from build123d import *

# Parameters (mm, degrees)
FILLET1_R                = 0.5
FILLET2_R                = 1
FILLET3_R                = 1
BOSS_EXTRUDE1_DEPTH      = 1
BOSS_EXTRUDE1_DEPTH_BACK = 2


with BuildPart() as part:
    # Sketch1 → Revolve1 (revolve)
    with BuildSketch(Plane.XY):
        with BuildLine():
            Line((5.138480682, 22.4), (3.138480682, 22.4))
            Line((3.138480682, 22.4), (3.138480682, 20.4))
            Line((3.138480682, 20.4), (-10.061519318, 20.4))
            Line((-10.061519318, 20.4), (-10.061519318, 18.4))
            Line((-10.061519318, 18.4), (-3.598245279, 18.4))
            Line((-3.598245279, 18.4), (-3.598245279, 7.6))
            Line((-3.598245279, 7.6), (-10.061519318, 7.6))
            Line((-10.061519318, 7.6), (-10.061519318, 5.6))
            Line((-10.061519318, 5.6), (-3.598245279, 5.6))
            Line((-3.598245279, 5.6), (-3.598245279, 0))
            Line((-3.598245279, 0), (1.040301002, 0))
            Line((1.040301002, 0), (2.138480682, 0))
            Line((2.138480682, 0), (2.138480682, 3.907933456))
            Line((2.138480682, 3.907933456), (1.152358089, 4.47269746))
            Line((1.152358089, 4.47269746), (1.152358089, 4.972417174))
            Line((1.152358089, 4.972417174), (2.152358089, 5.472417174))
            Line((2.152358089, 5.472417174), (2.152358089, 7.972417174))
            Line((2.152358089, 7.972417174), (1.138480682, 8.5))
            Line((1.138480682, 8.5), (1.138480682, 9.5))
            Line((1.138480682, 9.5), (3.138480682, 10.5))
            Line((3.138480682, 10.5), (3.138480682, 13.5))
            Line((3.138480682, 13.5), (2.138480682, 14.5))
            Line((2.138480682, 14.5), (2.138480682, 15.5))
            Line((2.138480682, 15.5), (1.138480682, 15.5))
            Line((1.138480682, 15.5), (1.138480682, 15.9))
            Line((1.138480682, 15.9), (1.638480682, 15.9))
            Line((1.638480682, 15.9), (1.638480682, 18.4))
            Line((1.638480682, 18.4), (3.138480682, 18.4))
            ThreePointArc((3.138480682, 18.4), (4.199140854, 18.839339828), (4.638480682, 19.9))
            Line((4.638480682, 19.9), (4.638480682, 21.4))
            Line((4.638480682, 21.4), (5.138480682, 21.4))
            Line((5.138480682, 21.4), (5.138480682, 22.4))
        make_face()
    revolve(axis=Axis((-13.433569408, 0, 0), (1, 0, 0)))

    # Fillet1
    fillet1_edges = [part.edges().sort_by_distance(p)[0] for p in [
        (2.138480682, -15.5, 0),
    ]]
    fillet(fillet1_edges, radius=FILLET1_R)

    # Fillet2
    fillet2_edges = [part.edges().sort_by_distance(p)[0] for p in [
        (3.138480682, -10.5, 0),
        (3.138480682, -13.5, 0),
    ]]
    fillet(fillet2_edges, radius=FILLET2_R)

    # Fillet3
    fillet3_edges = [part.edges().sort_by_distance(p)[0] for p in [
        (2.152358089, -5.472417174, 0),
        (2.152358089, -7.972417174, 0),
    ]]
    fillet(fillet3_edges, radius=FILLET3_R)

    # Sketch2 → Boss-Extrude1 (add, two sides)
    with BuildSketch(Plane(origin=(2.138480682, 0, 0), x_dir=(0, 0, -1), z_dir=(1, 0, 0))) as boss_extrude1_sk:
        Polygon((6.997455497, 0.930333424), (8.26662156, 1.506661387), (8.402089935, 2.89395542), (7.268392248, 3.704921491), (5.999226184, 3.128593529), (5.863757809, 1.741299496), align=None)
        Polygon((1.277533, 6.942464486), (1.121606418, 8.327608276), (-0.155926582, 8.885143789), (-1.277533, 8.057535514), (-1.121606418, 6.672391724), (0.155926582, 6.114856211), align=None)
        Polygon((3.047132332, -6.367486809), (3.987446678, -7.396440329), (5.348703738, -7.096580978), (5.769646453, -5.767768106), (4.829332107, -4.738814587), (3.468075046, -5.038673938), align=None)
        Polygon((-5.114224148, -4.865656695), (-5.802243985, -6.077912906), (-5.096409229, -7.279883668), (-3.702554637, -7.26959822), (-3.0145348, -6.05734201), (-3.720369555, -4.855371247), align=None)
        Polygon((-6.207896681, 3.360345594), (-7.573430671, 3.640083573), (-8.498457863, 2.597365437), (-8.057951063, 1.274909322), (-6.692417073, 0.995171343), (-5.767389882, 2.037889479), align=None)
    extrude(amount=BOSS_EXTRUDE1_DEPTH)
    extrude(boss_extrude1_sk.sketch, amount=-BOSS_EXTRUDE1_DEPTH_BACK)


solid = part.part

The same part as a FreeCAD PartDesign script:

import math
import FreeCAD as App
import Part
import Sketcher

V = App.Vector
Q = App.Units.Quantity


def edges_at(feature, points):
    """Names of the edges that pass closest to the given points."""
    edges = feature.Shape.Edges
    near = lambda p: min(range(len(edges)), key=lambda i: edges[i].distToShape(Part.Vertex(*p))[0])
    return sorted({f"Edge{near(p) + 1}" for p in points})


def add_polygon(sketch, points):
    """Adds a closed chain of lines whose ends are joined by coincident constraints."""
    first, n = sketch.GeometryCount, len(points)
    for a, b in zip(points, points[1:] + points[:1]):
        sketch.addGeometry(Part.LineSegment(App.Vector(*a, 0), App.Vector(*b, 0)), False)
    for i in range(n):
        sketch.addConstraint(Sketcher.Constraint("Coincident", first + i, 2, first + (i + 1) % n, 1))

doc = App.newDocument("Part")
body = doc.addObject("PartDesign::Body", "Body")

# Sketch on XY plane
sketch1 = body.newObject("Sketcher::SketchObject", "Sketch")
sketch1.AttachmentSupport = (doc.getObject("XY_Plane"), [""])
sketch1.MapMode = "FlatFace"
sketch1.addGeometry([
    Part.LineSegment(V(5.14, 22.4, 0), V(3.14, 22.4, 0)),  # 0
    Part.LineSegment(V(3.14, 22.4, 0), V(3.14, 20.4, 0)),  # 1
    Part.LineSegment(V(3.14, 20.4, 0), V(-10.06, 20.4, 0)),  # 2
    Part.LineSegment(V(-10.06, 20.4, 0), V(-10.06, 18.4, 0)),  # 3
    Part.LineSegment(V(-10.06, 18.4, 0), V(-3.6, 18.4, 0)),  # 4
    Part.LineSegment(V(-3.6, 18.4, 0), V(-3.6, 7.6, 0)),  # 5
    Part.LineSegment(V(-3.6, 7.6, 0), V(-10.06, 7.6, 0)),  # 6
    Part.LineSegment(V(-10.06, 7.6, 0), V(-10.06, 5.6, 0)),  # 7
    Part.LineSegment(V(-10.06, 5.6, 0), V(-3.6, 5.6, 0)),  # 8
    Part.LineSegment(V(-3.6, 5.6, 0), V(-3.6, 0, 0)),  # 9
    Part.LineSegment(V(-3.6, 0, 0), V(2.14, 0, 0)),  # 10
    Part.LineSegment(V(2.14, 0, 0), V(2.14, 3.91, 0)),  # 11
    Part.LineSegment(V(2.14, 3.91, 0), V(1.15, 4.47, 0)),  # 12
    Part.LineSegment(V(1.15, 4.47, 0), V(1.15, 4.97, 0)),  # 13
    Part.LineSegment(V(1.15, 4.97, 0), V(2.15, 5.47, 0)),  # 14
    Part.LineSegment(V(2.15, 5.47, 0), V(2.15, 7.97, 0)),  # 15
    Part.LineSegment(V(2.15, 7.97, 0), V(1.14, 8.5, 0)),  # 16
    Part.LineSegment(V(1.14, 8.5, 0), V(1.14, 9.5, 0)),  # 17
    Part.LineSegment(V(1.14, 9.5, 0), V(3.14, 10.5, 0)),  # 18
    Part.LineSegment(V(3.14, 10.5, 0), V(3.14, 13.5, 0)),  # 19
    Part.LineSegment(V(3.14, 13.5, 0), V(2.14, 14.5, 0)),  # 20
    Part.LineSegment(V(2.14, 14.5, 0), V(2.14, 15.5, 0)),  # 21
    Part.LineSegment(V(2.14, 15.5, 0), V(1.14, 15.5, 0)),  # 22
    Part.LineSegment(V(1.14, 15.5, 0), V(1.14, 15.9, 0)),  # 23
    Part.LineSegment(V(1.14, 15.9, 0), V(1.64, 15.9, 0)),  # 24
    Part.LineSegment(V(1.64, 15.9, 0), V(1.64, 18.4, 0)),  # 25
    Part.LineSegment(V(1.64, 18.4, 0), V(3.14, 18.4, 0)),  # 26
    Part.ArcOfCircle(Part.Circle(V(3.14, 19.9, 0), V(0, 0, 1), 1.5), math.radians(-90), math.radians(0)),  # 27
    Part.LineSegment(V(4.64, 19.9, 0), V(4.64, 21.4, 0)),  # 28
    Part.LineSegment(V(4.64, 21.4, 0), V(5.14, 21.4, 0)),  # 29
    Part.LineSegment(V(5.14, 21.4, 0), V(5.14, 22.4, 0)),  # 30
], False)
sketch1.addConstraint([
    Sketcher.Constraint("Coincident", 0, 2, 1, 1),
    Sketcher.Constraint("Coincident", 1, 2, 2, 1),
    Sketcher.Constraint("Coincident", 2, 2, 3, 1),
    Sketcher.Constraint("Coincident", 3, 2, 4, 1),
    Sketcher.Constraint("Coincident", 4, 2, 5, 1),
    Sketcher.Constraint("Coincident", 5, 2, 6, 1),
    Sketcher.Constraint("Coincident", 6, 2, 7, 1),
    Sketcher.Constraint("Coincident", 7, 2, 8, 1),
    Sketcher.Constraint("Coincident", 8, 2, 9, 1),
    Sketcher.Constraint("Coincident", 9, 2, 10, 1),
    Sketcher.Constraint("Coincident", 10, 2, 11, 1),
    Sketcher.Constraint("Coincident", 11, 2, 12, 1),
    Sketcher.Constraint("Coincident", 12, 2, 13, 1),
    Sketcher.Constraint("Coincident", 13, 2, 14, 1),
    Sketcher.Constraint("Coincident", 14, 2, 15, 1),
    Sketcher.Constraint("Coincident", 15, 2, 16, 1),
    Sketcher.Constraint("Coincident", 16, 2, 17, 1),
    Sketcher.Constraint("Coincident", 17, 2, 18, 1),
    Sketcher.Constraint("Coincident", 18, 2, 19, 1),
    Sketcher.Constraint("Coincident", 19, 2, 20, 1),
    Sketcher.Constraint("Coincident", 20, 2, 21, 1),
    Sketcher.Constraint("Coincident", 21, 2, 22, 1),
    Sketcher.Constraint("Coincident", 22, 2, 23, 1),
    Sketcher.Constraint("Coincident", 23, 2, 24, 1),
    Sketcher.Constraint("Coincident", 24, 2, 25, 1),
    Sketcher.Constraint("Coincident", 25, 2, 26, 1),
    Sketcher.Constraint("Tangent", 26, 2, 27, 1),
    Sketcher.Constraint("Tangent", 27, 2, 28, 1),
    Sketcher.Constraint("Coincident", 28, 2, 29, 1),
    Sketcher.Constraint("Coincident", 29, 2, 30, 1),
    Sketcher.Constraint("Coincident", 30, 2, 0, 1),
    Sketcher.Constraint("Horizontal", 0),
    Sketcher.Constraint("Vertical", 1),
    Sketcher.Constraint("Horizontal", 2),
    Sketcher.Constraint("Vertical", 3),
    Sketcher.Constraint("Horizontal", 4),
    Sketcher.Constraint("Vertical", 5),
    Sketcher.Constraint("Horizontal", 6),
    Sketcher.Constraint("Vertical", 7),
    Sketcher.Constraint("Horizontal", 8),
    Sketcher.Constraint("Vertical", 9),
    Sketcher.Constraint("Horizontal", 10),
    Sketcher.Constraint("Vertical", 11),
    Sketcher.Constraint("Vertical", 13),
    Sketcher.Constraint("Vertical", 15),
    Sketcher.Constraint("Vertical", 17),
    Sketcher.Constraint("Vertical", 19),
    Sketcher.Constraint("Vertical", 21),
    Sketcher.Constraint("Horizontal", 22),
    Sketcher.Constraint("Vertical", 23),
    Sketcher.Constraint("Horizontal", 24),
    Sketcher.Constraint("Vertical", 25),
    Sketcher.Constraint("Horizontal", 26),
    Sketcher.Constraint("Vertical", 28),
    Sketcher.Constraint("Horizontal", 29),
    Sketcher.Constraint("Vertical", 30),
    Sketcher.Constraint("PointOnObject", 9, 2, -1),
    Sketcher.Constraint("Parallel", 14, 18),
    Sketcher.Constraint("Horizontal", 4, 2, 25, 2),
    Sketcher.Constraint("Vertical", 27, 3, 0, 2),
    Sketcher.Constraint("Vertical", 3, 2, 6, 2),
    Sketcher.Constraint("Vertical", 5, 2, 8, 2),
    Sketcher.Constraint("Vertical", 1, 2, 18, 2),
    Sketcher.Constraint("Vertical", 11, 2, 20, 2),
    Sketcher.Constraint("Vertical", 17, 2, 22, 2),
    Sketcher.Constraint("Equal", 24, 29),
    Sketcher.Constraint("Equal", 0, 1),
    Sketcher.Constraint("Equal", 1, 3),
    Sketcher.Constraint("Equal", 3, 7),
    Sketcher.Constraint("Equal", 22, 17),
    Sketcher.Constraint("Equal", 17, 21),
    Sketcher.Constraint("Equal", 15, 25),
    Sketcher.Constraint("Equal", 26, 28),
    Sketcher.Constraint("Equal", 21, 30),
    Sketcher.Constraint("Radius", 27, 1.5),
    Sketcher.Constraint("DistanceX", 0, 2, 0, 1, 2.0),
    Sketcher.Constraint("DistanceX", 22, 2, 22, 1, 1.0),
    Sketcher.Constraint("DistanceY", 19, 1, 19, 2, 3.0),
    Sketcher.Constraint("Angle", 20, Q("135 deg")),
    Sketcher.Constraint("DistanceX", 2, 2, 2, 1, 13.2),
    Sketcher.Constraint("DistanceY", 5, 2, 5, 1, 10.8),
    Sketcher.Constraint("DistanceY", 9, 2, 9, 1, 5.6),
    Sketcher.Constraint("DistanceY", 15, 1, 15, 2, 2.5),
    Sketcher.Constraint("DistanceY", 23, 1, 23, 2, 0.4),
    Sketcher.Constraint("DistanceX", 13, 2, 14, 2, 1.0),
    Sketcher.Constraint("DistanceY", 13, 2, 15, 2, 3.0),
    Sketcher.Constraint("DistanceY", 13, 1, 13, 2, 0.49972),
    Sketcher.Constraint("Distance", 16, 1.142931),
    Sketcher.Constraint("DistanceX", 4, 1, 4, 2, 6.463274),
    Sketcher.Constraint("DistanceY", 11, 1, 11, 2, 3.907933),
    Sketcher.Constraint("DistanceX", -1, 1, 27, 3, 3.138481),
    Sketcher.Constraint("DistanceX", -1, 1, 12, 2, 1.152358),
])
revolution = body.newObject("PartDesign::Revolution", "Revolution")
revolution.Profile = sketch1
revolution.ReferenceAxis = (sketch1, ["H_Axis"])
revolution.Angle = 360
doc.recompute()

fillet = body.newObject("PartDesign::Fillet", "Fillet")
fillet.Base = (revolution, edges_at(revolution, [(2.138, -15.5, 0)]))
fillet.Radius = 0.5
doc.recompute()

fillet2 = body.newObject("PartDesign::Fillet", "Fillet001")
fillet2.Base = (fillet, edges_at(fillet, [(3.138, -10.5, 0), (3.138, -13.5, 0)]))
fillet2.Radius = 1
doc.recompute()

fillet3 = body.newObject("PartDesign::Fillet", "Fillet002")
fillet3.Base = (fillet2, edges_at(fillet2, [(2.152, -5.472, 0), (2.152, -7.972, 0)]))
fillet3.Radius = 1

# Sketch on YZ plane
sketch2 = body.newObject("Sketcher::SketchObject", "Sketch001")
sketch2.AttachmentSupport = (doc.getObject("YZ_Plane"), [""])
sketch2.MapMode = "FlatFace"
sketch2.AttachmentOffset = App.Placement(V(0, 0, 2.138481), App.Rotation())
add_polygon(sketch2, [(0.9, -7), (1.5, -8.3), (2.9, -8.4), (3.7, -7.3), (3.1, -6), (1.7, -5.9)])  # lines 0-5
add_polygon(sketch2, [(6.9, -1.3), (8.3, -1.1), (8.9, 0.2), (8.1, 1.3), (6.7, 1.1), (6.1, -0.2)])  # lines 6-11
add_polygon(sketch2, [(-6.4, -3), (-7.4, -4), (-7.1, -5.3), (-5.8, -5.8), (-4.7, -4.8), (-5, -3.5)])  # lines 12-17
add_polygon(sketch2, [(-4.9, 5.1), (-6.1, 5.8), (-7.3, 5.1), (-7.3, 3.7), (-6.1, 3), (-4.9, 3.7)])  # lines 18-23
add_polygon(sketch2, [(3.4, 6.2), (3.6, 7.6), (2.6, 8.5), (1.3, 8.1), (1, 6.7), (2, 5.8)])  # lines 24-29
sketch2.addConstraint([
    Sketcher.Constraint("Parallel", 0, 3),
    Sketcher.Constraint("Parallel", 1, 4),
    Sketcher.Constraint("Parallel", 2, 5),
    Sketcher.Constraint("Parallel", 6, 9),
    Sketcher.Constraint("Parallel", 7, 10),
    Sketcher.Constraint("Parallel", 8, 11),
    Sketcher.Constraint("Parallel", 12, 15),
    Sketcher.Constraint("Parallel", 13, 16),
    Sketcher.Constraint("Parallel", 14, 17),
    Sketcher.Constraint("Parallel", 18, 21),
    Sketcher.Constraint("Parallel", 19, 22),
    Sketcher.Constraint("Parallel", 20, 23),
    Sketcher.Constraint("Parallel", 24, 27),
    Sketcher.Constraint("Parallel", 25, 28),
    Sketcher.Constraint("Parallel", 26, 29),
    Sketcher.Constraint("Equal", 0, 1),
    Sketcher.Constraint("Equal", 1, 2),
    Sketcher.Constraint("Equal", 2, 3),
    Sketcher.Constraint("Equal", 5, 6),
    Sketcher.Constraint("Equal", 6, 7),
    Sketcher.Constraint("Equal", 7, 8),
    Sketcher.Constraint("Equal", 8, 9),
    Sketcher.Constraint("Equal", 11, 12),
    Sketcher.Constraint("Equal", 12, 13),
    Sketcher.Constraint("Equal", 13, 14),
    Sketcher.Constraint("Equal", 14, 15),
    Sketcher.Constraint("Equal", 17, 18),
    Sketcher.Constraint("Equal", 18, 19),
    Sketcher.Constraint("Equal", 19, 20),
    Sketcher.Constraint("Equal", 20, 21),
    Sketcher.Constraint("Equal", 23, 24),
    Sketcher.Constraint("Equal", 24, 25),
    Sketcher.Constraint("Equal", 25, 26),
    Sketcher.Constraint("Equal", 26, 27),
    Sketcher.Constraint("DistanceY", 12, 2, 20, 2, 7.690001),
    Sketcher.Constraint("DistanceX", -1, 1, 4, 2, 1.741299),
    Sketcher.Constraint("DistanceX", 20, 2, -1, 1, 7.269598),
    Sketcher.Constraint("DistanceX", 3, 2, 9, 2, 3.543798),
    Sketcher.Constraint("DistanceY", 3, 2, 10, 2, 5.8433),
    Sketcher.Constraint("DistanceX", 12, 2, 0, 2, 8.903102),
    Sketcher.Constraint("DistanceY", 14, 2, 12, 2, 1.7822),
    Sketcher.Constraint("DistanceX", 14, 2, 5, 2, 6.698102),
    Sketcher.Constraint("DistanceX", 18, 2, 15, 2, 1.339098),
    Sketcher.Constraint("DistanceY", 17, 2, 22, 2, 6.767502),
    Sketcher.Constraint("DistanceX", -1, 1, 0, 2, 1.506661),
    Sketcher.Constraint("DistanceY", 0, 2, -1, 1, 8.266622),
    Sketcher.Constraint("DistanceY", 1, 2, -1, 1, 8.40209),
    Sketcher.Constraint("DistanceX", -1, 1, 2, 2, 3.704921),
    Sketcher.Constraint("DistanceX", -1, 1, 6, 2, 8.327608),
    Sketcher.Constraint("DistanceX", -1, 1, 9, 2, 6.672392),
    Sketcher.Constraint("DistanceY", -1, 1, 19, 2, 5.096409),
    Sketcher.Constraint("DistanceX", 22, 2, -1, 1, 4.855371),
    Sketcher.Constraint("DistanceY", -1, 1, 22, 2, 3.72037),
    Sketcher.Constraint("DistanceY", -1, 1, 24, 2, 7.573431),
    Sketcher.Constraint("DistanceX", -1, 1, 26, 2, 1.274909),
    Sketcher.Constraint("DistanceY", -1, 1, 26, 2, 8.057951),
    Sketcher.Constraint("DistanceX", -1, 1, 27, 2, 0.995171),
    Sketcher.Constraint("DistanceX", -1, 1, 28, 2, 2.037889),
    Sketcher.Constraint("DistanceY", 3, 2, 6, 2, 4.87762),
    Sketcher.Constraint("DistanceX", 3, 2, 7, 2, 5.75655),
])
pad1 = body.newObject("PartDesign::Pad", "Pad")
pad1.Profile = sketch2
pad1.Type = "TwoLengths"
pad1.Length = 1
pad1.Length2 = 2

doc.recompute()
